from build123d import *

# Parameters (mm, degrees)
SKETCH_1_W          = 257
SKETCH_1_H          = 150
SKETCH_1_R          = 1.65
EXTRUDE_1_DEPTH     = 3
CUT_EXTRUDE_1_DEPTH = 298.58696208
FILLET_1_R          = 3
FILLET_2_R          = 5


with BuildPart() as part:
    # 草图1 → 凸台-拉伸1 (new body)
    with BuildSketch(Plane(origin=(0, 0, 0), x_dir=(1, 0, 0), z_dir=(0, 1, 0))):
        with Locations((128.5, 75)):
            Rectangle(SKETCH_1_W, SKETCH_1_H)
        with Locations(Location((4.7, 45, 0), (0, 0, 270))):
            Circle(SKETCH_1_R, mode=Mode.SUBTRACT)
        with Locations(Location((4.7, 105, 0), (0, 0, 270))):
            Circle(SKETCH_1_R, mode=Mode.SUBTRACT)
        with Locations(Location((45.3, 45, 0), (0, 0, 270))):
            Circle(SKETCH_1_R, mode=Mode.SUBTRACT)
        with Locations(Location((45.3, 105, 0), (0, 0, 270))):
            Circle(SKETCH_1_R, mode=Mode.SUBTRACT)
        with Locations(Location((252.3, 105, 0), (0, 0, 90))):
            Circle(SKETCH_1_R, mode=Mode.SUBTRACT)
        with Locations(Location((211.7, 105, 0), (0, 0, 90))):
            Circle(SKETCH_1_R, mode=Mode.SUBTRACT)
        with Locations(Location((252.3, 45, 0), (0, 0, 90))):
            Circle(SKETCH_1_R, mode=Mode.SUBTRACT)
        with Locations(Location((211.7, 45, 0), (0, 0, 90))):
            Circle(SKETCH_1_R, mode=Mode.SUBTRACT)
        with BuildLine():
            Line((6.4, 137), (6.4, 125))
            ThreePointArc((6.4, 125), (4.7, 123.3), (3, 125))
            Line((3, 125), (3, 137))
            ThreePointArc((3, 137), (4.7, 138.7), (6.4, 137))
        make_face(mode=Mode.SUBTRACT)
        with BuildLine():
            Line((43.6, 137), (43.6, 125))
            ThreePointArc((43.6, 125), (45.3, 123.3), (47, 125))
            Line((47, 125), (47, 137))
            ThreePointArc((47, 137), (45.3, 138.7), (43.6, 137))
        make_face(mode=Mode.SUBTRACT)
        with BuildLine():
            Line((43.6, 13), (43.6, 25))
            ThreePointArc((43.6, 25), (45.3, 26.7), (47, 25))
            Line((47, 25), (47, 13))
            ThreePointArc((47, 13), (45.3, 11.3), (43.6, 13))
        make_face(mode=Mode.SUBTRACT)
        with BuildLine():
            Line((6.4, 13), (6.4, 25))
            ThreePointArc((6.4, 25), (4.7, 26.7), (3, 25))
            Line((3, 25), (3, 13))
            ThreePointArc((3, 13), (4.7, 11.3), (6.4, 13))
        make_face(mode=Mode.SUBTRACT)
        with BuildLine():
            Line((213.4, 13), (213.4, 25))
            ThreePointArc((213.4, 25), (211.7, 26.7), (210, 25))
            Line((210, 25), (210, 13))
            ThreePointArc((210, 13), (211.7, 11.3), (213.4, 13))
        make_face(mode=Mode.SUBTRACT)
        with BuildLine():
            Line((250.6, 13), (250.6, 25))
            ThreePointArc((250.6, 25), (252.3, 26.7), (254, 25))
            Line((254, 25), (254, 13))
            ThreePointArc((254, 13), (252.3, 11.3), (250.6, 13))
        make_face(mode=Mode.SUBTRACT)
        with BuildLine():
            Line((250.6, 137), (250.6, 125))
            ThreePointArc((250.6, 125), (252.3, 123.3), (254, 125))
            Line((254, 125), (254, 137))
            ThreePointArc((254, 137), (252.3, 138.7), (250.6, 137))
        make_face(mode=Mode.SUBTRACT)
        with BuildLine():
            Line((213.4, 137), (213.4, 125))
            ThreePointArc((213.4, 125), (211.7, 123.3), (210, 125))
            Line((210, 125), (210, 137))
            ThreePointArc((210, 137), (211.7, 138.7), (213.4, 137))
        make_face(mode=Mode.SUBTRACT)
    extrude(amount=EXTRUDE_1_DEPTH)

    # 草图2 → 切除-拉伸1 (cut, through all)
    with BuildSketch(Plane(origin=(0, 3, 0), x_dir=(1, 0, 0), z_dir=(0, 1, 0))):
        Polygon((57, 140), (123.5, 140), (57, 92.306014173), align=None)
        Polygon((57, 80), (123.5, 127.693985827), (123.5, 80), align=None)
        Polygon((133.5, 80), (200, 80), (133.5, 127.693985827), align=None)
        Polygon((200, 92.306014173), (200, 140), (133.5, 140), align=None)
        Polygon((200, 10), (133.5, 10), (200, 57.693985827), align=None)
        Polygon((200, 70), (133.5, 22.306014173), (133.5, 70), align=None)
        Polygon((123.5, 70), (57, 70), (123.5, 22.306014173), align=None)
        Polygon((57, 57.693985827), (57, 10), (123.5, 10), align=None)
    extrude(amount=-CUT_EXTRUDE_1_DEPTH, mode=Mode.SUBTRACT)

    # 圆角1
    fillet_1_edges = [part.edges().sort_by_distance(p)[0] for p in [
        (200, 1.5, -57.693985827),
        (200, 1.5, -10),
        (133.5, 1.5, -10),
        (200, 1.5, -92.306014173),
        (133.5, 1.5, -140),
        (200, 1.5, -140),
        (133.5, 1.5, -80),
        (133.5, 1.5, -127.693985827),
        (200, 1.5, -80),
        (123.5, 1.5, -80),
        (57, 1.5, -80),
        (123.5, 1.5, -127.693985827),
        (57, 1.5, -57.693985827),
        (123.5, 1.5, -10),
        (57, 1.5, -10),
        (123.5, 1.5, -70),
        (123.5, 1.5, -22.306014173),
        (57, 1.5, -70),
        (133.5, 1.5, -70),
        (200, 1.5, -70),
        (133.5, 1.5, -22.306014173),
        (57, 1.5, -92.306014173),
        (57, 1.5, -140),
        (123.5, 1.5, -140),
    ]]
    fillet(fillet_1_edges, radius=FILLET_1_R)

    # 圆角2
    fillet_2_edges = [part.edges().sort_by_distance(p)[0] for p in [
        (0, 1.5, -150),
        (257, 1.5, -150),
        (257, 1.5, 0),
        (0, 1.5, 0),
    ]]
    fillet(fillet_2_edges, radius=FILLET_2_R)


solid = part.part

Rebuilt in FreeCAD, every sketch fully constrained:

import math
import FreeCAD as App
import Part
import Sketcher
Q = App.Units.Quantity


def edges_at(feature, points):
    """Names of the edges that pass closest to the given points."""
    edges = feature.Shape.Edges
    near = lambda p: min(range(len(edges)), key=lambda i: edges[i].distToShape(Part.Vertex(*p))[0])
    return sorted({f"Edge{near(p) + 1}" for p in points})

doc = App.newDocument("Part")
body = doc.addObject("PartDesign::Body", "Body")

# Sketch on XZ plane
sketch1 = body.newObject("Sketcher::SketchObject", "Sketch")
sketch1.AttachmentSupport = (doc.getObject("XZ_Plane"), [""])
sketch1.MapMode = "FlatFace"
sketch1.addGeometry([
    Part.LineSegment(App.Vector(0, -150, 0), App.Vector(0, 0, 0)),  # 0
    Part.LineSegment(App.Vector(0, 0, 0), App.Vector(257, 0, 0)),  # 1
    Part.LineSegment(App.Vector(257, 0, 0), App.Vector(257, -150, 0)),  # 2
    Part.LineSegment(App.Vector(257, -150, 0), App.Vector(0, -150, 0)),  # 3
    Part.LineSegment(App.Vector(6.4, -25, 0), App.Vector(6.4, -13, 0)),  # 4
    Part.ArcOfCircle(Part.Circle(App.Vector(4.7, -13, 0), App.Vector(0, 0, 1), 1.7), math.radians(0), math.radians(180)),  # 5
    Part.LineSegment(App.Vector(3, -13, 0), App.Vector(3, -25, 0)),  # 6
    Part.ArcOfCircle(Part.Circle(App.Vector(4.7, -25, 0), App.Vector(0, 0, 1), 1.7), math.radians(180), math.radians(360)),  # 7
    Part.ArcOfCircle(Part.Circle(App.Vector(45.3, -13, 0), App.Vector(0, 0, 1), 1.7), math.radians(0), math.radians(180)),  # 8
    Part.LineSegment(App.Vector(43.6, -13, 0), App.Vector(43.6, -25, 0)),  # 9
    Part.ArcOfCircle(Part.Circle(App.Vector(45.3, -25, 0), App.Vector(0, 0, 1), 1.7), math.radians(180), math.radians(360)),  # 10
    Part.LineSegment(App.Vector(47, -25, 0), App.Vector(47, -13, 0)),  # 11
    Part.Circle(App.Vector(4.7, -45, 0), App.Vector(0, 0, 1), 1.6),  # 12
    Part.Circle(App.Vector(45.3, -45, 0), App.Vector(0, 0, 1), 1.6),  # 13
    Part.LineSegment(App.Vector(213.4, -25, 0), App.Vector(213.4, -13, 0)),  # 14
    Part.ArcOfCircle(Part.Circle(App.Vector(211.7, -13, 0), App.Vector(0, 0, 1), 1.7), math.radians(0), math.radians(180)),  # 15
    Part.LineSegment(App.Vector(210, -13, 0), App.Vector(210, -25, 0)),  # 16
    Part.ArcOfCircle(Part.Circle(App.Vector(211.7, -25, 0), App.Vector(0, 0, 1), 1.7), math.radians(180), math.radians(360)),  # 17
    Part.ArcOfCircle(Part.Circle(App.Vector(252.3, -13, 0), App.Vector(0, 0, 1), 1.7), math.radians(0), math.radians(180)),  # 18
    Part.LineSegment(App.Vector(250.6, -13, 0), App.Vector(250.6, -25, 0)),  # 19
    Part.ArcOfCircle(Part.Circle(App.Vector(252.3, -25, 0), App.Vector(0, 0, 1), 1.7), math.radians(180), math.radians(360)),  # 20
    Part.LineSegment(App.Vector(254, -25, 0), App.Vector(254, -13, 0)),  # 21
    Part.Circle(App.Vector(211.7, -45, 0), App.Vector(0, 0, 1), 1.6),  # 22
    Part.Circle(App.Vector(252.3, -45, 0), App.Vector(0, 0, 1), 1.6),  # 23
    Part.Circle(App.Vector(4.7, -105, 0), App.Vector(0, 0, 1), 1.6),  # 24
    Part.Circle(App.Vector(45.3, -105, 0), App.Vector(0, 0, 1), 1.6),  # 25
    Part.ArcOfCircle(Part.Circle(App.Vector(4.7, -137, 0), App.Vector(0, 0, 1), 1.7), math.radians(180), math.radians(360)),  # 26
    Part.LineSegment(App.Vector(6.4, -137, 0), App.Vector(6.4, -125, 0)),  # 27
    Part.ArcOfCircle(Part.Circle(App.Vector(4.7, -125, 0), App.Vector(0, 0, 1), 1.7), math.radians(0), math.radians(180)),  # 28
    Part.LineSegment(App.Vector(3, -125, 0), App.Vector(3, -137, 0)),  # 29
    Part.LineSegment(App.Vector(43.6, -125, 0), App.Vector(43.6, -137, 0)),  # 30
    Part.ArcOfCircle(Part.Circle(App.Vector(45.3, -137, 0), App.Vector(0, 0, 1), 1.7), math.radians(180), math.radians(360)),  # 31
    Part.LineSegment(App.Vector(47, -137, 0), App.Vector(47, -125, 0)),  # 32
    Part.ArcOfCircle(Part.Circle(App.Vector(45.3, -125, 0), App.Vector(0, 0, 1), 1.7), math.radians(0), math.radians(180)),  # 33
    Part.Circle(App.Vector(211.7, -105, 0), App.Vector(0, 0, 1), 1.6),  # 34
    Part.Circle(App.Vector(252.3, -105, 0), App.Vector(0, 0, 1), 1.6),  # 35
    Part.ArcOfCircle(Part.Circle(App.Vector(211.7, -137, 0), App.Vector(0, 0, 1), 1.7), math.radians(180), math.radians(360)),  # 36
    Part.LineSegment(App.Vector(213.4, -137, 0), App.Vector(213.4, -125, 0)),  # 37
    Part.ArcOfCircle(Part.Circle(App.Vector(211.7, -125, 0), App.Vector(0, 0, 1), 1.7), math.radians(0), math.radians(180)),  # 38
    Part.LineSegment(App.Vector(210, -125, 0), App.Vector(210, -137, 0)),  # 39
    Part.LineSegment(App.Vector(250.6, -125, 0), App.Vector(250.6, -137, 0)),  # 40
    Part.ArcOfCircle(Part.Circle(App.Vector(252.3, -137, 0), App.Vector(0, 0, 1), 1.7), math.radians(180), math.radians(360)),  # 41
    Part.LineSegment(App.Vector(254, -137, 0), App.Vector(254, -125, 0)),  # 42
    Part.ArcOfCircle(Part.Circle(App.Vector(252.3, -125, 0), App.Vector(0, 0, 1), 1.7), math.radians(0), math.radians(180)),  # 43
], False)
sketch1.addConstraint([
    Sketcher.Constraint("Coincident", 0, 2, 1, 1),
    Sketcher.Constraint("Coincident", 1, 2, 2, 1),
    Sketcher.Constraint("Coincident", 2, 2, 3, 1),
    Sketcher.Constraint("Coincident", 3, 2, 0, 1),
    Sketcher.Constraint("Tangent", 4, 2, 5, 1),
    Sketcher.Constraint("Tangent", 5, 2, 6, 1),
    Sketcher.Constraint("Tangent", 6, 2, 7, 1),
    Sketcher.Constraint("Tangent", 7, 2, 4, 1),
    Sketcher.Constraint("Tangent", 8, 2, 9, 1),
    Sketcher.Constraint("Tangent", 9, 2, 10, 1),
    Sketcher.Constraint("Tangent", 10, 2, 11, 1),
    Sketcher.Constraint("Tangent", 11, 2, 8, 1),
    Sketcher.Constraint("Tangent", 14, 2, 15, 1),
    Sketcher.Constraint("Tangent", 15, 2, 16, 1),
    Sketcher.Constraint("Tangent", 16, 2, 17, 1),
    Sketcher.Constraint("Tangent", 17, 2, 14, 1),
    Sketcher.Constraint("Tangent", 18, 2, 19, 1),
    Sketcher.Constraint("Tangent", 19, 2, 20, 1),
    Sketcher.Constraint("Tangent", 20, 2, 21, 1),
    Sketcher.Constraint("Tangent", 21, 2, 18, 1),
    Sketcher.Constraint("Tangent", 26, 2, 27, 1),
    Sketcher.Constraint("Tangent", 27, 2, 28, 1),
    Sketcher.Constraint("Tangent", 28, 2, 29, 1),
    Sketcher.Constraint("Tangent", 29, 2, 26, 1),
    Sketcher.Constraint("Tangent", 30, 2, 31, 1),
    Sketcher.Constraint("Tangent", 31, 2, 32, 1),
    Sketcher.Constraint("Tangent", 32, 2, 33, 1),
    Sketcher.Constraint("Tangent", 33, 2, 30, 1),
    Sketcher.Constraint("Tangent", 36, 2, 37, 1),
    Sketcher.Constraint("Tangent", 37, 2, 38, 1),
    Sketcher.Constraint("Tangent", 38, 2, 39, 1),
    Sketcher.Constraint("Tangent", 39, 2, 36, 1),
    Sketcher.Constraint("Tangent", 40, 2, 41, 1),
    Sketcher.Constraint("Tangent", 41, 2, 42, 1),
    Sketcher.Constraint("Tangent", 42, 2, 43, 1),
    Sketcher.Constraint("Tangent", 43, 2, 40, 1),
    Sketcher.Constraint("Vertical", 0),
    Sketcher.Constraint("Horizontal", 1),
    Sketcher.Constraint("Vertical", 2),
    Sketcher.Constraint("Horizontal", 3),
    Sketcher.Constraint("Vertical", 4),
    Sketcher.Constraint("Vertical", 6),
    Sketcher.Constraint("Vertical", 9),
    Sketcher.Constraint("Vertical", 11),
    Sketcher.Constraint("Vertical", 14),
    Sketcher.Constraint("Vertical", 16),
    Sketcher.Constraint("Vertical", 19),
    Sketcher.Constraint("Vertical", 21),
    Sketcher.Constraint("Vertical", 27),
    Sketcher.Constraint("Vertical", 29),
    Sketcher.Constraint("Vertical", 30),
    Sketcher.Constraint("Vertical", 32),
    Sketcher.Constraint("Vertical", 37),
    Sketcher.Constraint("Vertical", 39),
    Sketcher.Constraint("Vertical", 40),
    Sketcher.Constraint("Vertical", 42),
    Sketcher.Constraint("Coincident", 0, 2, -1, 1),
    Sketcher.Constraint("Equal", 7, 8),
    Sketcher.Constraint("Equal", 12, 13),
    Sketcher.Constraint("Equal", 10, 15),
    Sketcher.Constraint("Equal", 17, 18),
    Sketcher.Constraint("Equal", 13, 22),
    Sketcher.Constraint("Equal", 22, 23),
    Sketcher.Constraint("Equal", 23, 24),
    Sketcher.Constraint("Equal", 24, 25),
    Sketcher.Constraint("Equal", 20, 26),
    Sketcher.Constraint("Equal", 28, 31),
    Sketcher.Constraint("Equal", 25, 34),
    Sketcher.Constraint("Equal", 34, 35),
    Sketcher.Constraint("Equal", 33, 36),
    Sketcher.Constraint("Equal", 38, 41),
    Sketcher.Constraint("Horizontal", 5, 3, 8, 3),
    Sketcher.Constraint("Horizontal", 7, 3, 10, 3),
    Sketcher.Constraint("Horizontal", 12, 3, 13, 3),
    Sketcher.Constraint("Horizontal", 8, 3, 15, 3),
    Sketcher.Constraint("Horizontal", 10, 3, 17, 3),
    Sketcher.Constraint("Horizontal", 15, 3, 18, 3),
    Sketcher.Constraint("Horizontal", 17, 3, 20, 3),
    Sketcher.Constraint("Horizontal", 13, 3, 22, 3),
    Sketcher.Constraint("Horizontal", 22, 3, 23, 3),
    Sketcher.Constraint("Horizontal", 24, 3, 25, 3),
    Sketcher.Constraint("Horizontal", 26, 3, 31, 3),
    Sketcher.Constraint("Horizontal", 28, 3, 33, 3),
    Sketcher.Constraint("Horizontal", 25, 3, 34, 3),
    Sketcher.Constraint("Horizontal", 34, 3, 35, 3),
    Sketcher.Constraint("Horizontal", 31, 3, 36, 3),
    Sketcher.Constraint("Horizontal", 33, 3, 38, 3),
    Sketcher.Constraint("Horizontal", 36, 3, 41, 3),
    Sketcher.Constraint("Horizontal", 38, 3, 43, 3),
    Sketcher.Constraint("Vertical", 7, 3, 12, 3),
    Sketcher.Constraint("Vertical", 10, 3, 13, 3),
    Sketcher.Constraint("Vertical", 17, 3, 22, 3),
    Sketcher.Constraint("Vertical", 20, 3, 23, 3),
    Sketcher.Constraint("Vertical", 12, 3, 24, 3),
    Sketcher.Constraint("Vertical", 13, 3, 25, 3),
    Sketcher.Constraint("Vertical", 24, 3, 26, 3),
    Sketcher.Constraint("Vertical", 25, 3, 31, 3),
    Sketcher.Constraint("Vertical", 22, 3, 34, 3),
    Sketcher.Constraint("Vertical", 23, 3, 35, 3),
    Sketcher.Constraint("Vertical", 34, 3, 36, 3),
    Sketcher.Constraint("Vertical", 35, 3, 41, 3),
    Sketcher.Constraint("Equal", 21, 27),
    Sketcher.Constraint("Diameter", 12, Q("3.3 mm")),
    Sketcher.Constraint("Radius", 5, Q("1.7 mm")),
    Sketcher.Constraint("DistanceX", 1, 1, 1, 2, Q("257 mm")),
    Sketcher.Constraint("DistanceY", 0, 1, 0, 2, Q("150 mm")),
    Sketcher.Constraint("DistanceY", 4, 1, 4, 2, Q("12 mm")),
    Sketcher.Constraint("DistanceY", 5, 3, -1, 1, Q("13 mm")),
    Sketcher.Constraint("DistanceY", 12, 3, -1, 1, Q("45 mm")),
    Sketcher.Constraint("DistanceY", 24, 3, -1, 1, Q("105 mm")),
    Sketcher.Constraint("DistanceY", 26, 3, -1, 1, Q("137 mm")),
    Sketcher.Constraint("DistanceX", -1, 1, 5, 2, Q("3 mm")),
    Sketcher.Constraint("DistanceX", -1, 1, 10, 2, Q("47 mm")),
    Sketcher.Constraint("DistanceX", -1, 1, 15, 2, Q("210 mm")),
    Sketcher.Constraint("DistanceX", -1, 1, 20, 2, Q("254 mm")),
])
pad1 = body.newObject("PartDesign::Pad", "Pad")
pad1.Profile = sketch1
pad1.Length = 3
pad1.Reversed = True

# Sketch on XZ plane
sketch2 = body.newObject("Sketcher::SketchObject", "Sketch001")
sketch2.AttachmentSupport = (doc.getObject("XZ_Plane"), [""])
sketch2.MapMode = "FlatFace"
sketch2.AttachmentOffset = App.Placement(App.Vector(0, 0, -3), App.Rotation())
sketch2.addGeometry([
    Part.LineSegment(App.Vector(124, -140, 0), App.Vector(57, -140, 0)),  # 0
    Part.LineSegment(App.Vector(57, -140, 0), App.Vector(57, -92, 0)),  # 1
    Part.LineSegment(App.Vector(57, -92, 0), App.Vector(124, -140, 0)),  # 2
    Part.LineSegment(App.Vector(124, -128, 0), App.Vector(57, -80, 0)),  # 3
    Part.LineSegment(App.Vector(57, -80, 0), App.Vector(124, -80, 0)),  # 4
    Part.LineSegment(App.Vector(124, -80, 0), App.Vector(124, -128, 0)),  # 5
    Part.LineSegment(App.Vector(134, -80, 0), App.Vector(200, -80, 0)),  # 6
    Part.LineSegment(App.Vector(200, -80, 0), App.Vector(134, -128, 0)),  # 7
    Part.LineSegment(App.Vector(134, -128, 0), App.Vector(134, -80, 0)),  # 8
    Part.LineSegment(App.Vector(200, -92, 0), App.Vector(200, -140, 0)),  # 9
    Part.LineSegment(App.Vector(200, -140, 0), App.Vector(134, -140, 0)),  # 10
    Part.LineSegment(App.Vector(134, -140, 0), App.Vector(200, -92, 0)),  # 11
    Part.LineSegment(App.Vector(134, -10, 0), App.Vector(200, -10, 0)),  # 12
    Part.LineSegment(App.Vector(200, -10, 0), App.Vector(200, -58, 0)),  # 13
    Part.LineSegment(App.Vector(200, -58, 0), App.Vector(134, -10, 0)),  # 14
    Part.LineSegment(App.Vector(134, -22, 0), App.Vector(200, -70, 0)),  # 15
    Part.LineSegment(App.Vector(200, -70, 0), App.Vector(134, -70, 0)),  # 16
    Part.LineSegment(App.Vector(134, -70, 0), App.Vector(134, -22, 0)),  # 17
    Part.LineSegment(App.Vector(124, -70, 0), App.Vector(57, -70, 0)),  # 18
    Part.LineSegment(App.Vector(57, -70, 0), App.Vector(124, -22, 0)),  # 19
    Part.LineSegment(App.Vector(124, -22, 0), App.Vector(124, -70, 0)),  # 20
    Part.LineSegment(App.Vector(57, -58, 0), App.Vector(57, -10, 0)),  # 21
    Part.LineSegment(App.Vector(57, -10, 0), App.Vector(124, -10, 0)),  # 22
    Part.LineSegment(App.Vector(124, -10, 0), App.Vector(57, -58, 0)),  # 23
], False)
sketch2.addConstraint([
    Sketcher.Constraint("Coincident", 0, 2, 1, 1),
    Sketcher.Constraint("Coincident", 1, 2, 2, 1),
    Sketcher.Constraint("Coincident", 2, 2, 0, 1),
    Sketcher.Constraint("Coincident", 3, 2, 4, 1),
    Sketcher.Constraint("Coincident", 4, 2, 5, 1),
    Sketcher.Constraint("Coincident", 5, 2, 3, 1),
    Sketcher.Constraint("Coincident", 6, 2, 7, 1),
    Sketcher.Constraint("Coincident", 7, 2, 8, 1),
    Sketcher.Constraint("Coincident", 8, 2, 6, 1),
    Sketcher.Constraint("Coincident", 9, 2, 10, 1),
    Sketcher.Constraint("Coincident", 10, 2, 11, 1),
    Sketcher.Constraint("Coincident", 11, 2, 9, 1),
    Sketcher.Constraint("Coincident", 12, 2, 13, 1),
    Sketcher.Constraint("Coincident", 13, 2, 14, 1),
    Sketcher.Constraint("Coincident", 14, 2, 12, 1),
    Sketcher.Constraint("Coincident", 15, 2, 16, 1),
    Sketcher.Constraint("Coincident", 16, 2, 17, 1),
    Sketcher.Constraint("Coincident", 17, 2, 15, 1),
    Sketcher.Constraint("Coincident", 18, 2, 19, 1),
    Sketcher.Constraint("Coincident", 19, 2, 20, 1),
    Sketcher.Constraint("Coincident", 20, 2, 18, 1),
    Sketcher.Constraint("Coincident", 21, 2, 22, 1),
    Sketcher.Constraint("Coincident", 22, 2, 23, 1),
    Sketcher.Constraint("Coincident", 23, 2, 21, 1),
    Sketcher.Constraint("Horizontal", 0),
    Sketcher.Constraint("Vertical", 1),
    Sketcher.Constraint("Horizontal", 4),
    Sketcher.Constraint("Vertical", 5),
    Sketcher.Constraint("Horizontal", 6),
    Sketcher.Constraint("Vertical", 8),
    Sketcher.Constraint("Vertical", 9),
    Sketcher.Constraint("Horizontal", 10),
    Sketcher.Constraint("Horizontal", 12),
    Sketcher.Constraint("Vertical", 13),
    Sketcher.Constraint("Horizontal", 16),
    Sketcher.Constraint("Vertical", 17),
    Sketcher.Constraint("Horizontal", 18),
    Sketcher.Constraint("Vertical", 20),
    Sketcher.Constraint("Vertical", 21),
    Sketcher.Constraint("Horizontal", 22),
    Sketcher.Constraint("Parallel", 2, 3),
    Sketcher.Constraint("Parallel", 7, 11),
    Sketcher.Constraint("Parallel", 3, 14),
    Sketcher.Constraint("Parallel", 14, 15),
    Sketcher.Constraint("Parallel", 11, 19),
    Sketcher.Constraint("Parallel", 19, 23),
    Sketcher.Constraint("Horizontal", 4, 2, 6, 2),
    Sketcher.Constraint("Horizontal", 5, 2, 7, 2),
    Sketcher.Constraint("Horizontal", 2, 2, 9, 2),
    Sketcher.Constraint("Horizontal", 1, 2, 11, 2),
    Sketcher.Constraint("Horizontal", 16, 2, 18, 2),
    Sketcher.Constraint("Horizontal", 17, 2, 19, 2),
    Sketcher.Constraint("Horizontal", 14, 2, 21, 2),
    Sketcher.Constraint("Horizontal", 13, 2, 23, 2),
    Sketcher.Constraint("Vertical", 1, 2, 3, 2),
    Sketcher.Constraint("Vertical", 2, 2, 4, 2),
    Sketcher.Constraint("Vertical", 6, 2, 9, 2),
    Sketcher.Constraint("Vertical", 11, 2, 12, 2),
    Sketcher.Constraint("Vertical", 10, 2, 14, 2),
    Sketcher.Constraint("Vertical", 13, 2, 15, 2),
    Sketcher.Constraint("Vertical", 14, 2, 16, 2),
    Sketcher.Constraint("Vertical", 3, 2, 18, 2),
    Sketcher.Constraint("Vertical", 5, 2, 19, 2),
    Sketcher.Constraint("Vertical", 18, 2, 21, 2),
    Sketcher.Constraint("DistanceX", 0, 2, 0, 1, Q("66.5 mm")),
    Sketcher.Constraint("DistanceX", -1, 1, 0, 2, Q("57 mm")),
    Sketcher.Constraint("DistanceY", 0, 2, -1, 1, Q("140 mm")),
    Sketcher.Constraint("DistanceY", 3, 2, -1, 1, Q("80 mm")),
    Sketcher.Constraint("DistanceX", -1, 1, 6, 2, Q("200 mm")),
    Sketcher.Constraint("DistanceY", 12, 2, -1, 1, Q("10 mm")),
    Sketcher.Constraint("DistanceY", 15, 2, -1, 1, Q("70 mm")),
    Sketcher.Constraint("DistanceY", 1, 1, 1, 2, Q("47.693986 mm")),
])
pocket1 = body.newObject("PartDesign::Pocket", "Pocket")
pocket1.Profile = sketch2
pocket1.Type = "ThroughAll"
pocket1.Reversed = True
doc.recompute()

fillet = body.newObject("PartDesign::Fillet", "Fillet")
fillet.Base = (pocket1, edges_at(pocket1, [
    (200, 1.5, -57.694),
    (200, 1.5, -10),
    (133.5, 1.5, -10),
    (200, 1.5, -92.306),
    (133.5, 1.5, -140),
    (200, 1.5, -140),
    (133.5, 1.5, -80),
    (133.5, 1.5, -127.694),
    (200, 1.5, -80),
    (123.5, 1.5, -80),
    (57, 1.5, -80),
    (123.5, 1.5, -127.694),
    (57, 1.5, -57.694),
    (123.5, 1.5, -10),
    (57, 1.5, -10),
    (123.5, 1.5, -70),
    (123.5, 1.5, -22.306),
    (57, 1.5, -70),
    (133.5, 1.5, -70),
    (200, 1.5, -70),
    (133.5, 1.5, -22.306),
    (57, 1.5, -92.306),
    (57, 1.5, -140),
    (123.5, 1.5, -140),
]))
fillet.Radius = 3
doc.recompute()

fillet2 = body.newObject("PartDesign::Fillet", "Fillet001")
fillet2.Base = (fillet, edges_at(fillet, [
    (0, 1.5, -150),
    (257, 1.5, -150),
    (257, 1.5, 0),
    (0, 1.5, 0),
]))
fillet2.Radius = 5

doc.recompute()
